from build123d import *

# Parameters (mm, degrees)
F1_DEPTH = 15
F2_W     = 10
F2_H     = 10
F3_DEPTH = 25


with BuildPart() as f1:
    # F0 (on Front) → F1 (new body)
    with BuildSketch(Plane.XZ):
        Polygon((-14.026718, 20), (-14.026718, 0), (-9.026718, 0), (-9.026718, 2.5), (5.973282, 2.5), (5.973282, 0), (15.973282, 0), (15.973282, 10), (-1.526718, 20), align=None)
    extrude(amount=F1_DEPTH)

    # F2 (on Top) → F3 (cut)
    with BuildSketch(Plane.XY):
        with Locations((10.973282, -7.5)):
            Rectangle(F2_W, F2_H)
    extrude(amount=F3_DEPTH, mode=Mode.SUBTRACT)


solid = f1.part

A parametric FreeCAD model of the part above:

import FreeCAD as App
import Part
import Sketcher
from FreeCAD import Vector
Q = App.Units.Quantity

doc = App.newDocument("Part")
params = doc.addObject("Spreadsheet::Sheet", "Params")
for row, (alias, value) in enumerate([
    ("sketch1_width", "5 mm"),
    ("sketch1_width2", "15 mm"),
    ("sketch1_width3", "10 mm"),
    ("sketch1_height", "20 mm"),
    ("sketch1_width4", "12.5 mm"),
    ("pad1_length", "15 mm"),
    ("sketch2_width", "10 mm"),
    ("pocket1_length", "25 mm"),
], start=1):
    params.set(f"A{row}", alias)
    params.set(f"B{row}", "=" + value)
    params.setAlias(f"B{row}", alias)

body = doc.addObject("PartDesign::Body", "Body")

# Sketch on XZ plane
sketch1 = body.newObject("Sketcher::SketchObject", "Sketch")
sketch1.AttachmentSupport = (doc.getObject("XZ_Plane"), [""])
sketch1.MapMode = "FlatFace"
sketch1.addGeometry([
    Part.LineSegment(Vector(-14.026718, 20, 0), Vector(-14.026718, 0, 0)),  # 0
    Part.LineSegment(Vector(-14.026718, 0, 0), Vector(-9.026718, 0, 0)),  # 1
    Part.LineSegment(Vector(-9.026718, 0, 0), Vector(-9.026718, 2.5, 0)),  # 2
    Part.LineSegment(Vector(-9.026718, 2.5, 0), Vector(5.973282, 2.5, 0)),  # 3
    Part.LineSegment(Vector(5.973282, 2.5, 0), Vector(5.973282, 0, 0)),  # 4
    Part.LineSegment(Vector(5.973282, 0, 0), Vector(15.973282, 0, 0)),  # 5
    Part.LineSegment(Vector(15.973282, 0, 0), Vector(15.973282, 10, 0)),  # 6
    Part.LineSegment(Vector(15.973282, 10, 0), Vector(-1.526718, 20, 0)),  # 7
    Part.LineSegment(Vector(-1.526718, 20, 0), Vector(-14.026718, 20, 0)),  # 8
], False)
sketch1.addConstraint([
    Sketcher.Constraint("Coincident", 0, 2, 1, 1),
    Sketcher.Constraint("Coincident", 1, 2, 2, 1),
    Sketcher.Constraint("Coincident", 2, 2, 3, 1),
    Sketcher.Constraint("Coincident", 3, 2, 4, 1),
    Sketcher.Constraint("Coincident", 4, 2, 5, 1),
    Sketcher.Constraint("Coincident", 5, 2, 6, 1),
    Sketcher.Constraint("Coincident", 6, 2, 7, 1),
    Sketcher.Constraint("Coincident", 7, 2, 8, 1),
    Sketcher.Constraint("Coincident", 8, 2, 0, 1),
    Sketcher.Constraint("Vertical", 0),
    Sketcher.Constraint("Horizontal", 1),
    Sketcher.Constraint("Vertical", 2),
    Sketcher.Constraint("Horizontal", 3),
    Sketcher.Constraint("Vertical", 4),
    Sketcher.Constraint("Horizontal", 5),
    Sketcher.Constraint("Vertical", 6),
    Sketcher.Constraint("Horizontal", 8),
    Sketcher.Constraint("PointOnObject", 0, 2, -1),
    Sketcher.Constraint("PointOnObject", 4, 2, -1),
    Sketcher.Constraint("Equal", 5, 6),
    Sketcher.Constraint("DistanceX", 1, 1, 1, 2, Q("5 mm")),
    Sketcher.Constraint("DistanceX", 3, 1, 3, 2, Q("15 mm")),
    Sketcher.Constraint("DistanceX", 5, 1, 5, 2, Q("10 mm")),
    Sketcher.Constraint("DistanceY", 0, 2, 0, 1, Q("20 mm")),
    Sketcher.Constraint("DistanceX", 8, 2, 8, 1, Q("12.5 mm")),
    Sketcher.Constraint("DistanceY", 2, 1, 2, 2, Q("2.5 mm")),
    Sketcher.Constraint("DistanceX", 0, 2, -1, 1, Q("14.026718 mm")),
])
sketch1.setExpression("Constraints[20]", "Params.sketch1_width")
sketch1.setExpression("Constraints[21]", "Params.sketch1_width2")
sketch1.setExpression("Constraints[22]", "Params.sketch1_width3")
sketch1.setExpression("Constraints[23]", "Params.sketch1_height")
sketch1.setExpression("Constraints[24]", "Params.sketch1_width4")
pad1 = body.newObject("PartDesign::Pad", "Pad")
pad1.Profile = sketch1
pad1.setExpression("Length", "Params.pad1_length")

# Sketch on XY plane
sketch2 = body.newObject("Sketcher::SketchObject", "Sketch001")
sketch2.AttachmentSupport = (doc.getObject("XY_Plane"), [""])
sketch2.MapMode = "FlatFace"
sketch2.addGeometry([
    Part.LineSegment(Vector(5.973282, -2.5, 0), Vector(5.973282, -12.5, 0)),
    Part.LineSegment(Vector(5.973282, -12.5, 0), Vector(15.973282, -12.5, 0)),
    Part.LineSegment(Vector(15.973282, -12.5, 0), Vector(15.973282, -2.5, 0)),
    Part.LineSegment(Vector(15.973282, -2.5, 0), Vector(5.973282, -2.5, 0)),
], False)
sketch2.addConstraint([
    Sketcher.Constraint("Coincident", 0, 2, 1, 1),
    Sketcher.Constraint("Coincident", 1, 2, 2, 1),
    Sketcher.Constraint("Coincident", 2, 2, 3, 1),
    Sketcher.Constraint("Coincident", 3, 2, 0, 1),
    Sketcher.Constraint("Vertical", 0),
    Sketcher.Constraint("Horizontal", 1),
    Sketcher.Constraint("Vertical", 2),
    Sketcher.Constraint("Horizontal", 3),
    Sketcher.Constraint("Equal", 3, 0),
    Sketcher.Constraint("DistanceX", 1, 1, 1, 2, Q("10 mm")),
    Sketcher.Constraint("DistanceY", 0, 2, -1, 1, Q("12.5 mm")),
    Sketcher.Constraint("DistanceX", -1, 1, 1, 2, Q("15.973282 mm")),
])
sketch2.setExpression("Constraints[9]", "Params.sketch2_width")
pocket1 = body.newObject("PartDesign::Pocket", "Pocket")
pocket1.Profile = sketch2
pocket1.setExpression("Length", "Params.pocket1_length")
pocket1.Reversed = True

doc.recompute()
